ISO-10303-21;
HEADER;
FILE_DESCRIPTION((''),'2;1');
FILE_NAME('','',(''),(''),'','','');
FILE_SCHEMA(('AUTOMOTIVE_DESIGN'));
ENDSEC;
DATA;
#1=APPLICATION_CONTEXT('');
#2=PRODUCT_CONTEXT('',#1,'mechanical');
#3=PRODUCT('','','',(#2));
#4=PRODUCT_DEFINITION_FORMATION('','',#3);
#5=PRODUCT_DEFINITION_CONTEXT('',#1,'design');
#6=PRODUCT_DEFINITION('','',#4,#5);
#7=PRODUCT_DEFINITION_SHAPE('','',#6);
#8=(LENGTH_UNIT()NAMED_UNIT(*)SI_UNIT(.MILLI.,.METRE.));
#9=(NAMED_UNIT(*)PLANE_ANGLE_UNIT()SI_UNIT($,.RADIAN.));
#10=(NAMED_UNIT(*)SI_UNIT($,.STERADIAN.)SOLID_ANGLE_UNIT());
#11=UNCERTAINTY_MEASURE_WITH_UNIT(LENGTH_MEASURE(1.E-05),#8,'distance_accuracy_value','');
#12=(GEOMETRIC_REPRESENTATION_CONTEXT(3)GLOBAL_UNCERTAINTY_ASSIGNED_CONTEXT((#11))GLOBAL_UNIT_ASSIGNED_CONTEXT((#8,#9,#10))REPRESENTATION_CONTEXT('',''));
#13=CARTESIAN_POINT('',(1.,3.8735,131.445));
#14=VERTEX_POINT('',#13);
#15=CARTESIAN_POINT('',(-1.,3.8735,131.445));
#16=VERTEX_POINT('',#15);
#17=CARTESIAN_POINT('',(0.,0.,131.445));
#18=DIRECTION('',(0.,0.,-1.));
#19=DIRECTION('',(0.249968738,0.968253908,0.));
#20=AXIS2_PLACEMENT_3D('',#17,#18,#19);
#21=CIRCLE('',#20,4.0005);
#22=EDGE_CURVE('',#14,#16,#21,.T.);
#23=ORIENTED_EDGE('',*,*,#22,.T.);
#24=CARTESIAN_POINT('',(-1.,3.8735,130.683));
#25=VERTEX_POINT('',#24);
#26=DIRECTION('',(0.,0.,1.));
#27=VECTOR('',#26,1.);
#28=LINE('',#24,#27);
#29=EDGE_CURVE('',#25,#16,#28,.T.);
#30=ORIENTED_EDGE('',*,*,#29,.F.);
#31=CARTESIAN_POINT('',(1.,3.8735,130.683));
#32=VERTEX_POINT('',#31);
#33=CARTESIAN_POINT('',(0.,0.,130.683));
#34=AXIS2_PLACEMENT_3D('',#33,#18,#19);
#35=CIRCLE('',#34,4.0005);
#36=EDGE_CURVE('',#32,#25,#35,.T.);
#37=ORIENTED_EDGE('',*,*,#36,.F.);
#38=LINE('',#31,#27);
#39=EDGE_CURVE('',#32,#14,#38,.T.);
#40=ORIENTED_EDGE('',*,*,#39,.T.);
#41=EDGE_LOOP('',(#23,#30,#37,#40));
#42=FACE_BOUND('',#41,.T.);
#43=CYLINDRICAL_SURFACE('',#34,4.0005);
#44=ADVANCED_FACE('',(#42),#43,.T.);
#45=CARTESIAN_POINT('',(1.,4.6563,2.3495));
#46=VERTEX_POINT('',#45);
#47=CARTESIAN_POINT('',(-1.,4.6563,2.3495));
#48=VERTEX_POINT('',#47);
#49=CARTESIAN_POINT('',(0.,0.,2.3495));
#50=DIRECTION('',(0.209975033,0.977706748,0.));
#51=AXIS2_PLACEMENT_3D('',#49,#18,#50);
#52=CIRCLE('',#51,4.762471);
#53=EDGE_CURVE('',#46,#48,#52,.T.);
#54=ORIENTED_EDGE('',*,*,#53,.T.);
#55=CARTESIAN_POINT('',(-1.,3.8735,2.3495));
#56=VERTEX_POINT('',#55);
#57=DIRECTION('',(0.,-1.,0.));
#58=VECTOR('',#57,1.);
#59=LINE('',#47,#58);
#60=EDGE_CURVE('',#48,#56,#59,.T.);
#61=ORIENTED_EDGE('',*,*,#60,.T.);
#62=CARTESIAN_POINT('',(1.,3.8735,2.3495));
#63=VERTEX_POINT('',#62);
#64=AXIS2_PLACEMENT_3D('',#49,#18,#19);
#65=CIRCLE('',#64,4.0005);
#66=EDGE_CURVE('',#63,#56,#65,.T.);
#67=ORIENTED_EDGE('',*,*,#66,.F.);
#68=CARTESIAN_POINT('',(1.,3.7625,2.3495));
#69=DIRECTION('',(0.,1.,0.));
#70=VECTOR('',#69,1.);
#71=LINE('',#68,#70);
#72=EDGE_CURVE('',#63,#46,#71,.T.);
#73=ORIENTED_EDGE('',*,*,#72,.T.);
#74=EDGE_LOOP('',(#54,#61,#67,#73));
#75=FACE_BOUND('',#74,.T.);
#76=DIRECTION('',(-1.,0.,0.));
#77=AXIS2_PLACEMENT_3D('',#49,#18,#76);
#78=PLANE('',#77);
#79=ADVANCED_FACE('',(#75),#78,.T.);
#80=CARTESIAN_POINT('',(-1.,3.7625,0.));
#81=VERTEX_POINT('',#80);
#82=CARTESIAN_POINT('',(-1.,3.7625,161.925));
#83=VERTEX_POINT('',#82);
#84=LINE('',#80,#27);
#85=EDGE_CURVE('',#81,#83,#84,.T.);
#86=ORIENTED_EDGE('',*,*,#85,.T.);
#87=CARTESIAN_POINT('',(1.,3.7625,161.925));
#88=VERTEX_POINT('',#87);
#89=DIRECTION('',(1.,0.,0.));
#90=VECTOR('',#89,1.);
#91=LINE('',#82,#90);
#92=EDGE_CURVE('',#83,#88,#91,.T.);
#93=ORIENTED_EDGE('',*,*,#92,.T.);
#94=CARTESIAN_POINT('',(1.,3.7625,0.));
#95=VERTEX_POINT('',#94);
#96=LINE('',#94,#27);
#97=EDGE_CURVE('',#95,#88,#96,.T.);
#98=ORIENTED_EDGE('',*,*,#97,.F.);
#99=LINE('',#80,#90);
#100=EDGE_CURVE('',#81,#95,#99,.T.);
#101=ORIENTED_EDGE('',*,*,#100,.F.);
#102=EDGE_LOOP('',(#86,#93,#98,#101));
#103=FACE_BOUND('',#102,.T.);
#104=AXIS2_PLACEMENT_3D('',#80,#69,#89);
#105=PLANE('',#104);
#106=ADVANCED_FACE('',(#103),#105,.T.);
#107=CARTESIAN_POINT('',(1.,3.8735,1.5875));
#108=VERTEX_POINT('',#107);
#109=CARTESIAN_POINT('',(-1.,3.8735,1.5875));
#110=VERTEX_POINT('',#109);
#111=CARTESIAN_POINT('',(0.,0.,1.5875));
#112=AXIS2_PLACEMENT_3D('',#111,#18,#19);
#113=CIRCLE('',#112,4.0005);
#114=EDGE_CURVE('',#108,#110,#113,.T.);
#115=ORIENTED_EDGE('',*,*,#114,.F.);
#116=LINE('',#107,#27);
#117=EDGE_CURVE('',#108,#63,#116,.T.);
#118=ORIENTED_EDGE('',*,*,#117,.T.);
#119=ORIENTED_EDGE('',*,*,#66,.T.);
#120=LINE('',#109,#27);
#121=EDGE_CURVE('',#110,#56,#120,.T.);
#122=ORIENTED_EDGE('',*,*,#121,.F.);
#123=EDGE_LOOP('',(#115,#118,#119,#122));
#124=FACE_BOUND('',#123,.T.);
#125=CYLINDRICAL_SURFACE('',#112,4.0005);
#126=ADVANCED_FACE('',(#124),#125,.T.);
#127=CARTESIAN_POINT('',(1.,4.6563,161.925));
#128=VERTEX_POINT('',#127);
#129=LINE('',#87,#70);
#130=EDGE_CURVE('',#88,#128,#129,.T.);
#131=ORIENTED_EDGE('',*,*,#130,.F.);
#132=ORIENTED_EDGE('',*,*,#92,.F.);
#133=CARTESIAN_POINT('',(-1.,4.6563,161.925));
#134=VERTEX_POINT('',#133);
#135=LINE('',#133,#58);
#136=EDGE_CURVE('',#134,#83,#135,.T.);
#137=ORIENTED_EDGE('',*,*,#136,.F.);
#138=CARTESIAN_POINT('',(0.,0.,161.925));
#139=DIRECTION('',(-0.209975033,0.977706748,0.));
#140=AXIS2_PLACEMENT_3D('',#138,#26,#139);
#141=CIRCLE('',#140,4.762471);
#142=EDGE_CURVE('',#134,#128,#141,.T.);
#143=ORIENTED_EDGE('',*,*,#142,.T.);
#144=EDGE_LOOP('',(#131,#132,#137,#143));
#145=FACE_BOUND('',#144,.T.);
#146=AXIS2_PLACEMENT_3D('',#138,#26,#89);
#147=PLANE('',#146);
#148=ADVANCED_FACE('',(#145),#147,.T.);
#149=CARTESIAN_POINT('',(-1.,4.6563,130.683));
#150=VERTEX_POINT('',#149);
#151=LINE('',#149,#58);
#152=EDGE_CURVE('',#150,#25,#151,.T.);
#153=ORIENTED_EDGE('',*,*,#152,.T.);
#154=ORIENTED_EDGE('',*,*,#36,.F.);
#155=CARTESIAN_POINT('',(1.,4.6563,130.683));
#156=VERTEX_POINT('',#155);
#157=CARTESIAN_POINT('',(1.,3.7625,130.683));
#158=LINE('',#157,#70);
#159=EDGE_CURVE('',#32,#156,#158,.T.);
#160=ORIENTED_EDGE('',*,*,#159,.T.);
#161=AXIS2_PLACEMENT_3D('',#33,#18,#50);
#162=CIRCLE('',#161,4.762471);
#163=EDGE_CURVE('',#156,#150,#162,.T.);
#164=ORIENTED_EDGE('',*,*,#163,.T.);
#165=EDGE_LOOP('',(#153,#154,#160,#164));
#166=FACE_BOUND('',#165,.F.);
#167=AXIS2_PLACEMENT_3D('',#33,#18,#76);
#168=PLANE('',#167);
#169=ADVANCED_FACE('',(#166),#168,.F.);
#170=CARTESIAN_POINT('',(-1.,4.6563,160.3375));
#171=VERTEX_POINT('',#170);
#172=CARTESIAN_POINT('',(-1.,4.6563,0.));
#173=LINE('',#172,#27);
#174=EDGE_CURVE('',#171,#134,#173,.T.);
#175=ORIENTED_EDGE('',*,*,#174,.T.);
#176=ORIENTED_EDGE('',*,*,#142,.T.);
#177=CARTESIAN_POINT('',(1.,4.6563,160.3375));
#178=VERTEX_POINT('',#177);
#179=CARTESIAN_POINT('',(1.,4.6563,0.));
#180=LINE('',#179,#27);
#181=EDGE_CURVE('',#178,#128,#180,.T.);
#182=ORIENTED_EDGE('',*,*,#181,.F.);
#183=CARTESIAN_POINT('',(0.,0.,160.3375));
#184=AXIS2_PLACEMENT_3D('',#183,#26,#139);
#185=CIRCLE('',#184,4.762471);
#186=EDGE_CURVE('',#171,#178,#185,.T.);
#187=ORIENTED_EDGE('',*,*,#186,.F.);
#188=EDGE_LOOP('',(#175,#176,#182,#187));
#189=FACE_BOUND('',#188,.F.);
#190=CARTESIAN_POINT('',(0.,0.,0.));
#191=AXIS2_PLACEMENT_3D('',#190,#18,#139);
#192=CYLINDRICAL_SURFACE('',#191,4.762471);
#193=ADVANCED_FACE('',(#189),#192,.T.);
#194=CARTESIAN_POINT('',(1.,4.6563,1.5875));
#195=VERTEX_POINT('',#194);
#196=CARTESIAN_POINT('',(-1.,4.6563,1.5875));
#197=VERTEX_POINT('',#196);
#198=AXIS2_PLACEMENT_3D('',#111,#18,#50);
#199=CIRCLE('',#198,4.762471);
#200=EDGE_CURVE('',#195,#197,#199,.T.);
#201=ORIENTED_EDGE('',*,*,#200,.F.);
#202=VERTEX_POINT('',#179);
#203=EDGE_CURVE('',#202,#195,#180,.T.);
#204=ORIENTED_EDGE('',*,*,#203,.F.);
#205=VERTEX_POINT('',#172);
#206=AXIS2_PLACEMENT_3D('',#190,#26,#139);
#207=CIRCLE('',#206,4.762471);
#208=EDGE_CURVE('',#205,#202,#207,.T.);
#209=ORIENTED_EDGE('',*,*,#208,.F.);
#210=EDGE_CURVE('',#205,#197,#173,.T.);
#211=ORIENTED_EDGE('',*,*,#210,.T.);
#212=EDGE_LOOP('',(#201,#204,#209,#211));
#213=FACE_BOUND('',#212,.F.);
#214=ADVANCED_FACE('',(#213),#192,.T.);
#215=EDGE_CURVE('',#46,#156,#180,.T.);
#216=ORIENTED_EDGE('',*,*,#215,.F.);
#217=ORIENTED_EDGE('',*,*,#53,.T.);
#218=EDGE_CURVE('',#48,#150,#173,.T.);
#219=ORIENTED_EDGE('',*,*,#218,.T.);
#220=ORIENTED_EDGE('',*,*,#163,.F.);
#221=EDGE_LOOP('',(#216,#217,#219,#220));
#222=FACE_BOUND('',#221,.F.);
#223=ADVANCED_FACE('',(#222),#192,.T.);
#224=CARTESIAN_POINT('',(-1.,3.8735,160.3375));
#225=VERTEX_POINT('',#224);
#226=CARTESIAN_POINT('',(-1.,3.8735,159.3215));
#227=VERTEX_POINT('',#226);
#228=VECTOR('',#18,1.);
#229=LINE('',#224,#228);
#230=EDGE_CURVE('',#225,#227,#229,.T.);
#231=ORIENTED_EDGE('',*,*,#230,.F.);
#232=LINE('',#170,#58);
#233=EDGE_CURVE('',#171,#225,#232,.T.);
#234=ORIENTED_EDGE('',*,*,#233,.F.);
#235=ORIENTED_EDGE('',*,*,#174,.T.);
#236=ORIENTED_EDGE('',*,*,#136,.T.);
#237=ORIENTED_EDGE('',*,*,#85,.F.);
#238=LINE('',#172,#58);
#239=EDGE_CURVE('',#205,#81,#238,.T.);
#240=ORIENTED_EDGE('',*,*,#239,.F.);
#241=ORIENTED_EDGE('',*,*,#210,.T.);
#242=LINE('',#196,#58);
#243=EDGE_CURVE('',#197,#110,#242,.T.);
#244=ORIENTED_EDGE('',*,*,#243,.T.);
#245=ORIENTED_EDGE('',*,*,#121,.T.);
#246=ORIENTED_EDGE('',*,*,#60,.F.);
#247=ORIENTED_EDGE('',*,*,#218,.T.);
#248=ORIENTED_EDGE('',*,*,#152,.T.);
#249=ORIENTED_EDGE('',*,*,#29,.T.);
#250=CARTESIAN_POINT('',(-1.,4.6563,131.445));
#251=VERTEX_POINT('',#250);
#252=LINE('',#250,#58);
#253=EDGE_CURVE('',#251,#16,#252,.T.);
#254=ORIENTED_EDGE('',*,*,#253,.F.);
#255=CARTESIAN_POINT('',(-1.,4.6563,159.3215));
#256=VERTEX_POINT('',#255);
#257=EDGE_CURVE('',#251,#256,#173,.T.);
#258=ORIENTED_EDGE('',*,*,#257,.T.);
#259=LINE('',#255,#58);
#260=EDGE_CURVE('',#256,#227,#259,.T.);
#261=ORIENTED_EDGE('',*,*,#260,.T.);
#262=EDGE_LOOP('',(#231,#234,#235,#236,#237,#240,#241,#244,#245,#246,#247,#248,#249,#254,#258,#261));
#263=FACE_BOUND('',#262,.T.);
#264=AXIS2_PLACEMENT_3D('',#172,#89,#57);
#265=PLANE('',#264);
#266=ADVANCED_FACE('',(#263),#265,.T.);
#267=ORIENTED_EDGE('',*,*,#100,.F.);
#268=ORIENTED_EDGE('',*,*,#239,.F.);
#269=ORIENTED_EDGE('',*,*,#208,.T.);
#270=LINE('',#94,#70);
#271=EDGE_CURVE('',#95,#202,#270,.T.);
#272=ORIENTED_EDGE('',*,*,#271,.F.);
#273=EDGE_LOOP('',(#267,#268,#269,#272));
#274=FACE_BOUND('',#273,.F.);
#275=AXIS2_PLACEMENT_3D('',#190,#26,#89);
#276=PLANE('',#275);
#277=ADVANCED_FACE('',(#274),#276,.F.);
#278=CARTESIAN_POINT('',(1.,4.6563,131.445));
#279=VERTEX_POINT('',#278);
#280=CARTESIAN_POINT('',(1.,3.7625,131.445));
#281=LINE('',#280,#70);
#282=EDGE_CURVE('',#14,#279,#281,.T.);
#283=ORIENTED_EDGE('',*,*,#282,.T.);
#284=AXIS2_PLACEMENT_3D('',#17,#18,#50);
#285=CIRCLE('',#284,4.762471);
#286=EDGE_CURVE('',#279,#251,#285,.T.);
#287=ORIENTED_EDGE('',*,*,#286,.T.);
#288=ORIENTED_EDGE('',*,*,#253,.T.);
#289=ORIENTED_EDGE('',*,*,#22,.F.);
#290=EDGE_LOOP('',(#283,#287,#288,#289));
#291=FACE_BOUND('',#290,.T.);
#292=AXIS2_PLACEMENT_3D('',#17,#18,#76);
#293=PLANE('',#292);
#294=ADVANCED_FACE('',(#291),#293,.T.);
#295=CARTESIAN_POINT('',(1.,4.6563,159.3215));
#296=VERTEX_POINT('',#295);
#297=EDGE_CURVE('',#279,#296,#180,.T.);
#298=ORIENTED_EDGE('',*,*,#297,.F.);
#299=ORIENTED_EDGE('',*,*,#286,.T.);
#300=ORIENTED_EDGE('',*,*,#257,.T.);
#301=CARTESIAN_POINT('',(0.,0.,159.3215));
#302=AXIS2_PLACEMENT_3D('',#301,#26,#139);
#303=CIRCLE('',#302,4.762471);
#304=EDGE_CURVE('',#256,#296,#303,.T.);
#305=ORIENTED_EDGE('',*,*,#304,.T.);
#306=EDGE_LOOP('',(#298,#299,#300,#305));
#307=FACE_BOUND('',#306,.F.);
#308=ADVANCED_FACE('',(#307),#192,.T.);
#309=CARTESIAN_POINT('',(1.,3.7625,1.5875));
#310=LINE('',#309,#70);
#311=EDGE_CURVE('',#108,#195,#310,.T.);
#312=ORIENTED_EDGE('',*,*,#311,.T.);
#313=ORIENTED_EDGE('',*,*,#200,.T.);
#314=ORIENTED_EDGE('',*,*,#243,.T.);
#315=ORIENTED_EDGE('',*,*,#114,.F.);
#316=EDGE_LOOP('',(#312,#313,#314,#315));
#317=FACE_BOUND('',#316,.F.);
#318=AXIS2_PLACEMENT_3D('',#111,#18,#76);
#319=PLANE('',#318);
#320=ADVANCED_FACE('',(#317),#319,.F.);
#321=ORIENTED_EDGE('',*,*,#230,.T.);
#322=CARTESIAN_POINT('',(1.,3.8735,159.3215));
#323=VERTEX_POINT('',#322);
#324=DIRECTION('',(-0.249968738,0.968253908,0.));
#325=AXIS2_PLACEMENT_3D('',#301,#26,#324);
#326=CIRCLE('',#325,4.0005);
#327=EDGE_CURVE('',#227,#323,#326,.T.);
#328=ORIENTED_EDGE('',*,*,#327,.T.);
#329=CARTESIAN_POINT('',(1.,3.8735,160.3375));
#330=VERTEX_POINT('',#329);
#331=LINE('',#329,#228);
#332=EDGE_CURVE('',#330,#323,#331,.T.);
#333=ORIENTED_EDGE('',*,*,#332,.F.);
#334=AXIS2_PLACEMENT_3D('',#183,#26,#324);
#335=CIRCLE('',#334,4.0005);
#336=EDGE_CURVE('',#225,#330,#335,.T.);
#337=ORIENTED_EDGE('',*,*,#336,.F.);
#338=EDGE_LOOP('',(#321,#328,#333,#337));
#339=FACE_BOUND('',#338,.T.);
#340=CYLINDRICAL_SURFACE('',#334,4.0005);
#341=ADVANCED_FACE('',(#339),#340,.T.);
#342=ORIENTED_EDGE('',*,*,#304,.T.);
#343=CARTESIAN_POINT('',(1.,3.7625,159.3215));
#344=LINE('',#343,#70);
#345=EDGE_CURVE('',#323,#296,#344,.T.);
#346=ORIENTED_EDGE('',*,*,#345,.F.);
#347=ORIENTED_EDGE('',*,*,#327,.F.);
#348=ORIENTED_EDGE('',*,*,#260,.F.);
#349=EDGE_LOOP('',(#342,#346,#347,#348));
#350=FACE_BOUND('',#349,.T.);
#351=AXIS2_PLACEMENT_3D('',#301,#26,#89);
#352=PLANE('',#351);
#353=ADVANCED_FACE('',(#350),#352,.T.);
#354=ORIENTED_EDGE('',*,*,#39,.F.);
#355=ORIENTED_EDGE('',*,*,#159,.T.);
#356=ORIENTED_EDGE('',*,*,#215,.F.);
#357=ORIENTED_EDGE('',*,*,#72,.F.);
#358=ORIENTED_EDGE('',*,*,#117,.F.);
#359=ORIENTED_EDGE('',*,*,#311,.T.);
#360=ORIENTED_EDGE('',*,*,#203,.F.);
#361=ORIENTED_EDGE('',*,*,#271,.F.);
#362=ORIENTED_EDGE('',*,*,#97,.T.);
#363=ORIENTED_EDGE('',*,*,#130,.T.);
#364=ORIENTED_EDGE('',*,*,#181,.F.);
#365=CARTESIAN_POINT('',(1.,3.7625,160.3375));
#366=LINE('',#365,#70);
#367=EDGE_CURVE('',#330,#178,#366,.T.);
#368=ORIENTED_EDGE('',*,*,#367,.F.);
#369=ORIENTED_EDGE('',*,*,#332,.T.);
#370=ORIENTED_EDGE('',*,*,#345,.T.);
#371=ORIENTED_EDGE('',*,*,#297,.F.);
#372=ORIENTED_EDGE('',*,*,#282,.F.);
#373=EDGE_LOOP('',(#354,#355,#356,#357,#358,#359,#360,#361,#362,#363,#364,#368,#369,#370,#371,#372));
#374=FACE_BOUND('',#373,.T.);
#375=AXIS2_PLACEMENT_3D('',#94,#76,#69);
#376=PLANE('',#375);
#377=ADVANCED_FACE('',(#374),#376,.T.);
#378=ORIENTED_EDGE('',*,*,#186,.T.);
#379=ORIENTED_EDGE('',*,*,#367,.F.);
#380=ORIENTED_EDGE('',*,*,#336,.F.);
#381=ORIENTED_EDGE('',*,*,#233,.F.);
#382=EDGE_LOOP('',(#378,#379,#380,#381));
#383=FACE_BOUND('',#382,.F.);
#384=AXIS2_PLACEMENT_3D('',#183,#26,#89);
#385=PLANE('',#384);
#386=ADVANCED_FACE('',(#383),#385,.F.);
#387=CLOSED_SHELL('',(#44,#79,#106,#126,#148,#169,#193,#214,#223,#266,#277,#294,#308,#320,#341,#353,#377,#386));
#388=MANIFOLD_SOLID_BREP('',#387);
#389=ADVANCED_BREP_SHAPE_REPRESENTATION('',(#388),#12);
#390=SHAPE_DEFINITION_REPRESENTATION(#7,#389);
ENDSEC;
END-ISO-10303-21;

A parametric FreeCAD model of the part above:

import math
import FreeCAD as App
import Part
import Sketcher

V = App.Vector
Q = App.Units.Quantity

doc = App.newDocument("Part")
body = doc.addObject("PartDesign::Body", "Body")

# Sketch on XY plane
sketch1 = body.newObject("Sketcher::SketchObject", "Sketch")
sketch1.AttachmentSupport = (doc.getObject("XY_Plane"), [""])
sketch1.MapMode = "FlatFace"
sketch1.addGeometry([
    Part.LineSegment(V(-1, 3.8, 0), V(-1, 4.7, 0)),
    Part.ArcOfCircle(Part.Circle(V(0, 0, 0), V(0, 0, 1), 4.8), math.radians(102), math.radians(438)),
    Part.LineSegment(V(1, 4.7, 0), V(1, 3.8, 0)),
    Part.LineSegment(V(1, 3.8, 0), V(-1, 3.8, 0)),
], False)
sketch1.addConstraint([
    Sketcher.Constraint("Coincident", 0, 2, 1, 1),
    Sketcher.Constraint("Coincident", 1, 2, 2, 1),
    Sketcher.Constraint("Coincident", 2, 2, 3, 1),
    Sketcher.Constraint("Coincident", 3, 2, 0, 1),
    Sketcher.Constraint("Vertical", 0),
    Sketcher.Constraint("Vertical", 2),
    Sketcher.Constraint("Horizontal", 3),
    Sketcher.Constraint("Coincident", 1, 3, -1, 1),
    Sketcher.Constraint("Horizontal", 0, 2, 1, 2),
    Sketcher.Constraint("Radius", 1, Q("0.1875 in")),
    Sketcher.Constraint("DistanceX", 3, 2, 3, 1, 2.0),
    Sketcher.Constraint("DistanceY", -1, 1, 2, 2, 3.7625),
])
pad1 = body.newObject("PartDesign::Pad", "Pad")
pad1.Profile = sketch1
pad1.Length = Q("6.375 in")

# Sketch on XY plane
sketch2 = body.newObject("Sketcher::SketchObject", "Sketch001")
sketch2.AttachmentSupport = (doc.getObject("XY_Plane"), [""])
sketch2.MapMode = "FlatFace"
sketch2.AttachmentOffset = App.Placement(V(0, 0, 0.0625 * 25.4), App.Rotation())
sketch2.addGeometry([
    Part.ArcOfCircle(Part.Circle(V(0, 0, 0), V(0, 0, 1), 4), math.radians(104), math.radians(436)),
    Part.LineSegment(V(1, 3.9, 0), V(1, 4.7, 0)),
    Part.ArcOfCircle(Part.Circle(V(0, 0, 0), V(0, 0, 1), 4.8), math.radians(102), math.radians(438)),
    Part.LineSegment(V(-1, 4.7, 0), V(-1, 3.9, 0)),
], False)
sketch2.addConstraint([
    Sketcher.Constraint("Coincident", 0, 2, 1, 1),
    Sketcher.Constraint("Coincident", 1, 2, 2, 2),
    Sketcher.Constraint("Coincident", 2, 1, 3, 1),
    Sketcher.Constraint("Coincident", 3, 2, 0, 1),
    Sketcher.Constraint("Vertical", 1),
    Sketcher.Constraint("Vertical", 3),
    Sketcher.Constraint("Coincident", 0, 3, -1, 1),
    Sketcher.Constraint("Coincident", 2, 3, -1, 1),
    Sketcher.Constraint("Horizontal", 1, 2, 2, 1),
    Sketcher.Constraint("Radius", 2, Q("0.1875 in")),
    Sketcher.Constraint("Radius", 0, Q("0.1575 in")),
    Sketcher.Constraint("DistanceY", 1, 1, 1, 2, 0.7828),
])
pocket1 = body.newObject("PartDesign::Pocket", "Pocket")
pocket1.Profile = sketch2
pocket1.Length = Q("0.03 in")
pocket1.Reversed = True

# Sketch on XY plane
sketch3 = body.newObject("Sketcher::SketchObject", "Sketch002")
sketch3.AttachmentSupport = (doc.getObject("XY_Plane"), [""])
sketch3.MapMode = "FlatFace"
sketch3.AttachmentOffset = App.Placement(V(0, 0, 5.145 * 25.4), App.Rotation())
sketch3.addGeometry([
    Part.ArcOfCircle(Part.Circle(V(0, 0, 0), V(0, 0, 1), 4), math.radians(104), math.radians(436)),
    Part.LineSegment(V(1, 3.9, 0), V(1, 4.7, 0)),
    Part.ArcOfCircle(Part.Circle(V(0, 0, 0), V(0, 0, 1), 4.8), math.radians(102), math.radians(438)),
    Part.LineSegment(V(-1, 4.7, 0), V(-1, 3.9, 0)),
], False)
sketch3.addConstraint([
    Sketcher.Constraint("Coincident", 0, 2, 1, 1),
    Sketcher.Constraint("Coincident", 1, 2, 2, 2),
    Sketcher.Constraint("Coincident", 2, 1, 3, 1),
    Sketcher.Constraint("Coincident", 3, 2, 0, 1),
    Sketcher.Constraint("Vertical", 1),
    Sketcher.Constraint("Vertical", 3),
    Sketcher.Constraint("Coincident", 0, 3, -1, 1),
    Sketcher.Constraint("Coincident", 2, 3, -1, 1),
    Sketcher.Constraint("Horizontal", 1, 2, 2, 1),
    Sketcher.Constraint("Radius", 2, Q("0.1875 in")),
    Sketcher.Constraint("Radius", 0, Q("0.1575 in")),
    Sketcher.Constraint("DistanceY", 1, 1, 1, 2, 0.7828),
])
pocket2 = body.newObject("PartDesign::Pocket", "Pocket001")
pocket2.Profile = sketch3
pocket2.Length = Q("0.03 in")
pocket2.Reversed = True

# Sketch on XY plane
sketch4 = body.newObject("Sketcher::SketchObject", "Sketch003")
sketch4.AttachmentSupport = (doc.getObject("XY_Plane"), [""])
sketch4.MapMode = "FlatFace"
sketch4.AttachmentOffset = App.Placement(V(0, 0, 6.3125 * 25.4), App.Rotation())
sketch4.addGeometry([
    Part.ArcOfCircle(Part.Circle(V(0, 0, 0), V(0, 0, 1), 4), math.radians(104), math.radians(436)),
    Part.LineSegment(V(-1, 3.9, 0), V(-1, 4.7, 0)),
    Part.ArcOfCircle(Part.Circle(V(0, 0, 0), V(0, 0, 1), 4.8), math.radians(102), math.radians(438)),
    Part.LineSegment(V(1, 4.7, 0), V(1, 3.9, 0)),
], False)
sketch4.addConstraint([
    Sketcher.Constraint("Coincident", 0, 1, 1, 1),
    Sketcher.Constraint("Coincident", 1, 2, 2, 1),
    Sketcher.Constraint("Coincident", 2, 2, 3, 1),
    Sketcher.Constraint("Coincident", 3, 2, 0, 2),
    Sketcher.Constraint("Vertical", 1),
    Sketcher.Constraint("Vertical", 3),
    Sketcher.Constraint("Coincident", 0, 3, -1, 1),
    Sketcher.Constraint("Coincident", 2, 3, -1, 1),
    Sketcher.Constraint("Horizontal", 1, 2, 2, 2),
    Sketcher.Constraint("Radius", 2, Q("0.1875 in")),
    Sketcher.Constraint("Radius", 0, Q("0.1575 in")),
    Sketcher.Constraint("DistanceY", 1, 1, 1, 2, 0.7828),
])
pocket3 = body.newObject("PartDesign::Pocket", "Pocket002")
pocket3.Profile = sketch4
pocket3.Length = Q("0.04 in")

doc.recompute()
